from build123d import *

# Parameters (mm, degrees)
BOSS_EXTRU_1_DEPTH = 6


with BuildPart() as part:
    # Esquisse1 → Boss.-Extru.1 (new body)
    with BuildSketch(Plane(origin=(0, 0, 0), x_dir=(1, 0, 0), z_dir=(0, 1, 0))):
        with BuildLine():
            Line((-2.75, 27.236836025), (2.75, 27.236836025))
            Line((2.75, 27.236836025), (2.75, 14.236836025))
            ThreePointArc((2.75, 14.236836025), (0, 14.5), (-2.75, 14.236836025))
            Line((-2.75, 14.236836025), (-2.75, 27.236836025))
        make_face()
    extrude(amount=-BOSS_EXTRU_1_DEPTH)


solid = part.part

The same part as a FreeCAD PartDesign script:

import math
import FreeCAD as App
import Part
import Sketcher

V = App.Vector
Q = App.Units.Quantity

doc = App.newDocument("Part")
body = doc.addObject("PartDesign::Body", "Body")

sketch1 = doc.addObject("Sketcher::SketchObject", "Sketch")
body.addObject(sketch1)
sketch1.AttachmentSupport = (doc.XZ_Plane, [""])
sketch1.MapMode = "FlatFace"
sketch1.addGeometry([
    Part.LineSegment(V(2.75, -27.236836, 0), V(-2.75, -27.236836, 0)),
    Part.LineSegment(V(-2.75, -27.236836, 0), V(-2.75, -14.236836, 0)),
    Part.ArcOfCircle(Part.Circle(V(0, 0, 0), V(0, 0, 1), 14.5), math.radians(-100.932661), math.radians(-79.067339)),
    Part.LineSegment(V(2.75, -14.236836, 0), V(2.75, -27.236836, 0)),
], False)
sketch1.addConstraint([
    Sketcher.Constraint("Coincident", 0, 2, 1, 1),
    Sketcher.Constraint("Coincident", 1, 2, 2, 1),
    Sketcher.Constraint("Coincident", 2, 2, 3, 1),
    Sketcher.Constraint("Coincident", 3, 2, 0, 1),
    Sketcher.Constraint("Horizontal", 0),
    Sketcher.Constraint("Vertical", 1),
    Sketcher.Constraint("Vertical", 3),
    Sketcher.Constraint("Coincident", 2, 3, -1, 1),
    Sketcher.Constraint("Horizontal", 1, 2, 2, 2),
    Sketcher.Constraint("Radius", 2, Q("14.5 mm")),
    Sketcher.Constraint("DistanceY", 1, 1, 1, 2, Q("13 mm")),
    Sketcher.Constraint("DistanceX", 0, 2, 0, 1, Q("5.5 mm")),
])
pad1 = doc.addObject("PartDesign::Pad", "Pad")
body.addObject(pad1)
pad1.Profile = sketch1
pad1.Length = 6

doc.recompute()
